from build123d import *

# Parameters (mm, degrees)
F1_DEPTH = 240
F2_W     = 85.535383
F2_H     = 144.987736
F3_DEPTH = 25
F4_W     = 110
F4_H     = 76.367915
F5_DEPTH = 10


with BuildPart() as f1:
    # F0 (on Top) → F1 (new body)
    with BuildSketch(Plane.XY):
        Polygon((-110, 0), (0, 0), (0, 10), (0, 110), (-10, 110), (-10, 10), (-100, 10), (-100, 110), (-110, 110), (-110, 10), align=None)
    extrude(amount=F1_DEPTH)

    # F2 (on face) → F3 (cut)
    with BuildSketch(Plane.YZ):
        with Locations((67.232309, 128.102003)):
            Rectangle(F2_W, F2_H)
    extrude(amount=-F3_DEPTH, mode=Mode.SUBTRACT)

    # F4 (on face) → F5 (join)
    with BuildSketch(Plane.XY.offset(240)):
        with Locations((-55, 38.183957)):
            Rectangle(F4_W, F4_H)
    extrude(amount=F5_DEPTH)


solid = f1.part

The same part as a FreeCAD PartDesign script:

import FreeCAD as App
import Part
import Sketcher


def add_polygon(sketch, points):
    """Adds a closed chain of lines whose ends are joined by coincident constraints."""
    first, n = sketch.GeometryCount, len(points)
    for a, b in zip(points, points[1:] + points[:1]):
        sketch.addGeometry(Part.LineSegment(App.Vector(*a, 0), App.Vector(*b, 0)), False)
    for i in range(n):
        sketch.addConstraint(Sketcher.Constraint("Coincident", first + i, 2, first + (i + 1) % n, 1))

doc = App.newDocument("Part")
body = doc.addObject("PartDesign::Body", "Body")

# Sketch on XY plane
sketch1 = body.newObject("Sketcher::SketchObject", "Sketch")
sketch1.AttachmentSupport = (doc.getObject("XY_Plane"), [""])
sketch1.MapMode = "FlatFace"
add_polygon(sketch1, [(-110, 0), (0, 0), (0, 110), (-10, 110), (-10, 10), (-100, 10), (-100, 110), (-110, 110)])  # lines 0-7
sketch1.addConstraint(Sketcher.Constraint("Horizontal", 0))
sketch1.addConstraint(Sketcher.Constraint("Vertical", 1))
sketch1.addConstraint(Sketcher.Constraint("Horizontal", 2))
sketch1.addConstraint(Sketcher.Constraint("Vertical", 3))
sketch1.addConstraint(Sketcher.Constraint("Horizontal", 4))
sketch1.addConstraint(Sketcher.Constraint("Vertical", 5))
sketch1.addConstraint(Sketcher.Constraint("Horizontal", 6))
sketch1.addConstraint(Sketcher.Constraint("Vertical", 7))
sketch1.addConstraint(Sketcher.Constraint("Coincident", 0, 2, -1, 1))
sketch1.addConstraint(Sketcher.Constraint("Horizontal", 2, 2, 5, 2))
sketch1.addConstraint(Sketcher.Constraint("Equal", 2, 6))
sketch1.addConstraint(Sketcher.Constraint("Equal", 0, 1))
sketch1.addConstraint(Sketcher.Constraint("DistanceX", 0, 1, 0, 2, 110.0))
sketch1.addConstraint(Sketcher.Constraint("DistanceX", 2, 2, 2, 1, 10.0))
sketch1.addConstraint(Sketcher.Constraint("DistanceY", 3, 2, 3, 1, 100.0))
pad1 = body.newObject("PartDesign::Pad", "Pad")
pad1.Profile = sketch1
pad1.Length = 240

# Sketch on YZ plane
sketch2 = body.newObject("Sketcher::SketchObject", "Sketch001")
sketch2.AttachmentSupport = (doc.getObject("YZ_Plane"), [""])
sketch2.MapMode = "FlatFace"
add_polygon(sketch2, [(24, 201), (24, 56), (110, 56), (110, 201)])  # lines 0-3
sketch2.addConstraint(Sketcher.Constraint("Vertical", 0))
sketch2.addConstraint(Sketcher.Constraint("Horizontal", 1))
sketch2.addConstraint(Sketcher.Constraint("Vertical", 2))
sketch2.addConstraint(Sketcher.Constraint("Horizontal", 3))
sketch2.addConstraint(Sketcher.Constraint("DistanceX", -1, 1, 1, 2, 110.0))
sketch2.addConstraint(Sketcher.Constraint("DistanceX", 1, 1, 1, 2, 85.535383))
sketch2.addConstraint(Sketcher.Constraint("DistanceY", 0, 2, 0, 1, 144.987736))
sketch2.addConstraint(Sketcher.Constraint("DistanceY", -1, 1, 2, 2, 200.595871))
pocket1 = body.newObject("PartDesign::Pocket", "Pocket")
pocket1.Profile = sketch2
pocket1.Length = 25

# Sketch on XY plane
sketch3 = body.newObject("Sketcher::SketchObject", "Sketch002")
sketch3.AttachmentSupport = (doc.getObject("XY_Plane"), [""])
sketch3.MapMode = "FlatFace"
sketch3.AttachmentOffset = App.Placement(App.Vector(0, 0, 240), App.Rotation())
add_polygon(sketch3, [(-110, 76), (-110, 0), (0, 0), (0, 76)])  # lines 0-3
sketch3.addConstraint(Sketcher.Constraint("Vertical", 0))
sketch3.addConstraint(Sketcher.Constraint("Horizontal", 1))
sketch3.addConstraint(Sketcher.Constraint("Vertical", 2))
sketch3.addConstraint(Sketcher.Constraint("Horizontal", 3))
sketch3.addConstraint(Sketcher.Constraint("Coincident", 1, 2, -1, 1))
sketch3.addConstraint(Sketcher.Constraint("DistanceX", 1, 1, 1, 2, 110.0))
sketch3.addConstraint(Sketcher.Constraint("DistanceY", 0, 2, 0, 1, 76.367915))
pad2 = body.newObject("PartDesign::Pad", "Pad001")
pad2.Profile = sketch3
pad2.Length = 10

doc.recompute()
